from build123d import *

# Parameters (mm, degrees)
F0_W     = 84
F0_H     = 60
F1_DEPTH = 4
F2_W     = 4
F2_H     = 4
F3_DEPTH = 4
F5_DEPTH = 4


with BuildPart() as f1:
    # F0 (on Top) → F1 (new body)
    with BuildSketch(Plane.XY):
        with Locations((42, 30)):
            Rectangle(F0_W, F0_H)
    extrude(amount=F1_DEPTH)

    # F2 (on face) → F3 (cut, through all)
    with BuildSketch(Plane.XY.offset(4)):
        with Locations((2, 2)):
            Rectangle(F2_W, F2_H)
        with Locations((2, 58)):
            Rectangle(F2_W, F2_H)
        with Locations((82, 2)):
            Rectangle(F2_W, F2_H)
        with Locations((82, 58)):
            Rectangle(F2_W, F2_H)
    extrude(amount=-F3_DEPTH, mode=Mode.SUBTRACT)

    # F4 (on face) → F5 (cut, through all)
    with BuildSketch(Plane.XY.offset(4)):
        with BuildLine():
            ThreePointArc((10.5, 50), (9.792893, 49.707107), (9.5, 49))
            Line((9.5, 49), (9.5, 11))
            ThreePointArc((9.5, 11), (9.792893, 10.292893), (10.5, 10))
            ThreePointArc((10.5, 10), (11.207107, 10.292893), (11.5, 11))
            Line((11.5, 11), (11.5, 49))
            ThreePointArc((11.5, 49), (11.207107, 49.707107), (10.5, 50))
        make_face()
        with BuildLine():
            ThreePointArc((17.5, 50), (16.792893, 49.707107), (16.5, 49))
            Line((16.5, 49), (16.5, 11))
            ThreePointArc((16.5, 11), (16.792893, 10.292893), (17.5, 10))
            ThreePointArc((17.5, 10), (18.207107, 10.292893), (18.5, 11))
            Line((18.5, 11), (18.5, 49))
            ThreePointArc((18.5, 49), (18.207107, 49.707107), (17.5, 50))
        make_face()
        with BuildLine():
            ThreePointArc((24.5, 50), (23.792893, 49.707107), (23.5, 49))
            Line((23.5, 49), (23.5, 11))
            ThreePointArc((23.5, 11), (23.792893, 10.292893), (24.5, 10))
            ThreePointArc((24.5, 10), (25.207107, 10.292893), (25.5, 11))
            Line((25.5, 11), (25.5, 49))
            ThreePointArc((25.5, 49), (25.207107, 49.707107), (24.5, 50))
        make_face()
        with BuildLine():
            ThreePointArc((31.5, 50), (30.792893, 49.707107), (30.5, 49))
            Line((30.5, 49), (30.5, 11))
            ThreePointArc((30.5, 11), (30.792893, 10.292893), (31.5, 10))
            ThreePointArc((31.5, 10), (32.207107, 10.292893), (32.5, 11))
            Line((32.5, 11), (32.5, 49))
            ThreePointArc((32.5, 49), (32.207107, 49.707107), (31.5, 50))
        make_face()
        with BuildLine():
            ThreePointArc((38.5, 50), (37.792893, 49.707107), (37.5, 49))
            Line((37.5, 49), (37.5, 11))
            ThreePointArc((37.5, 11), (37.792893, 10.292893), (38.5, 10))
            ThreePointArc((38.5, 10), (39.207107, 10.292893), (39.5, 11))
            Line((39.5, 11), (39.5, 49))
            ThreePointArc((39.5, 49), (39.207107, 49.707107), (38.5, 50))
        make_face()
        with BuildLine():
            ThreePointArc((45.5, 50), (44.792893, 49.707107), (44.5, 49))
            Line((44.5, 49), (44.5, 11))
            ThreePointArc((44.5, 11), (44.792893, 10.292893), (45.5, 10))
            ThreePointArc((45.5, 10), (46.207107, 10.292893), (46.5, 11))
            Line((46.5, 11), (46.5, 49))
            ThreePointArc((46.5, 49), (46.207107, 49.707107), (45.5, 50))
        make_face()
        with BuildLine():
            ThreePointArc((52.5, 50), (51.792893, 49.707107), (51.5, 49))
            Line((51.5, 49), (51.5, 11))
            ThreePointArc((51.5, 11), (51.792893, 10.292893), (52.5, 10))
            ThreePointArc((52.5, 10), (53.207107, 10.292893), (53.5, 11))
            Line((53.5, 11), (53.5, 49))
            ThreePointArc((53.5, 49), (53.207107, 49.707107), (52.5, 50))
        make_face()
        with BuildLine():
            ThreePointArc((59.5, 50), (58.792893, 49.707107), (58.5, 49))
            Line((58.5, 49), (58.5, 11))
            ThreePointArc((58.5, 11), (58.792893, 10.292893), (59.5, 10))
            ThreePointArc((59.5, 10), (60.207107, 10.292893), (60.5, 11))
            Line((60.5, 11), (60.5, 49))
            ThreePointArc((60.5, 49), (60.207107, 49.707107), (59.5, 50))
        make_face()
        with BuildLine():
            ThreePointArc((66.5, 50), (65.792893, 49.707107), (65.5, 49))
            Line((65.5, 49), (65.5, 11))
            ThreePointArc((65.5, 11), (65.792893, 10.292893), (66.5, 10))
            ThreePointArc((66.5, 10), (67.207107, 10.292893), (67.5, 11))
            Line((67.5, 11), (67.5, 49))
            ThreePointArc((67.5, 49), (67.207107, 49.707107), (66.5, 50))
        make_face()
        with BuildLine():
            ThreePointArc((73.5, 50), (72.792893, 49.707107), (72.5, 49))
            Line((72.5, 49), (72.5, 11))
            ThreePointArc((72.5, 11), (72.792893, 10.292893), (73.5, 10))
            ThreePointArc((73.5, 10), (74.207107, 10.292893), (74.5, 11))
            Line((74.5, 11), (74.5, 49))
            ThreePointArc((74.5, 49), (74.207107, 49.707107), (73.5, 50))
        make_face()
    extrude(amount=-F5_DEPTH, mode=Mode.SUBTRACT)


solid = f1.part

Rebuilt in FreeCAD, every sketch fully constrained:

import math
import FreeCAD as App
import Part
import Sketcher


def add_polygon(sketch, points):
    """Adds a closed chain of lines whose ends are joined by coincident constraints."""
    first, n = sketch.GeometryCount, len(points)
    for a, b in zip(points, points[1:] + points[:1]):
        sketch.addGeometry(Part.LineSegment(App.Vector(*a, 0), App.Vector(*b, 0)), False)
    for i in range(n):
        sketch.addConstraint(Sketcher.Constraint("Coincident", first + i, 2, first + (i + 1) % n, 1))

doc = App.newDocument("Part")
params = doc.addObject("Spreadsheet::Sheet", "Params")
for row, (alias, value) in enumerate([
    ("sketch1_width", "84 mm"),
    ("sketch1_height", "60 mm"),
    ("pad1_length", "4 mm"),
    ("sketch2_width", "4 mm"),
    ("sketch3_radius", "0.999999 mm"),
    ("sketch3_height", "38 mm"),
], start=1):
    params.set(f"A{row}", alias)
    params.set(f"B{row}", "=" + value)
    params.setAlias(f"B{row}", alias)

body = doc.addObject("PartDesign::Body", "Body")

# Sketch on XY plane
sketch1 = body.newObject("Sketcher::SketchObject", "Sketch")
sketch1.AttachmentSupport = (doc.getObject("XY_Plane"), [""])
sketch1.MapMode = "FlatFace"
add_polygon(sketch1, [(0, 60), (0, 0), (84, 0), (84, 60)])  # lines 0-3
sketch1.addConstraint([
    Sketcher.Constraint("Vertical", 0),
    Sketcher.Constraint("Horizontal", 1),
    Sketcher.Constraint("Vertical", 2),
    Sketcher.Constraint("Horizontal", 3),
    Sketcher.Constraint("Coincident", 0, 2, -1, 1),
    Sketcher.Constraint("DistanceX", 1, 1, 1, 2, 84.0),
    Sketcher.Constraint("DistanceY", 0, 2, 0, 1, 60.0),
])
sketch1.setExpression("Constraints[9]", "Params.sketch1_width")
sketch1.setExpression("Constraints[10]", "Params.sketch1_height")
pad1 = body.newObject("PartDesign::Pad", "Pad")
pad1.Profile = sketch1
pad1.setExpression("Length", "Params.pad1_length")

# Sketch on XY plane
sketch2 = body.newObject("Sketcher::SketchObject", "Sketch001")
sketch2.AttachmentSupport = (doc.getObject("XY_Plane"), [""])
sketch2.MapMode = "FlatFace"
sketch2.AttachmentOffset = App.Placement(App.Vector(0, 0, 4), App.Rotation())
add_polygon(sketch2, [(0, 4), (0, 0), (4, 0), (4, 4)])  # lines 0-3
add_polygon(sketch2, [(0, 60), (0, 56), (4, 56), (4, 60)])  # lines 4-7
add_polygon(sketch2, [(80, 4), (80, 0), (84, 0), (84, 4)])  # lines 8-11
add_polygon(sketch2, [(80, 60), (80, 56), (84, 56), (84, 60)])  # lines 12-15
sketch2.addConstraint([
    Sketcher.Constraint("Vertical", 0),
    Sketcher.Constraint("Horizontal", 1),
    Sketcher.Constraint("Vertical", 2),
    Sketcher.Constraint("Horizontal", 3),
    Sketcher.Constraint("Vertical", 4),
    Sketcher.Constraint("Horizontal", 5),
    Sketcher.Constraint("Vertical", 6),
    Sketcher.Constraint("Horizontal", 7),
    Sketcher.Constraint("Vertical", 8),
    Sketcher.Constraint("Horizontal", 9),
    Sketcher.Constraint("Vertical", 10),
    Sketcher.Constraint("Horizontal", 11),
    Sketcher.Constraint("Vertical", 12),
    Sketcher.Constraint("Horizontal", 13),
    Sketcher.Constraint("Vertical", 14),
    Sketcher.Constraint("Horizontal", 15),
    Sketcher.Constraint("Coincident", 0, 2, -1, 1),
    Sketcher.Constraint("PointOnObject", 4, 2, -2),
    Sketcher.Constraint("PointOnObject", 8, 2, -1),
    Sketcher.Constraint("Horizontal", 3, 2, 10, 2),
    Sketcher.Constraint("Horizontal", 5, 2, 12, 2),
    Sketcher.Constraint("Horizontal", 7, 2, 14, 2),
    Sketcher.Constraint("Vertical", 2, 2, 5, 2),
    Sketcher.Constraint("Vertical", 11, 2, 12, 2),
    Sketcher.Constraint("Vertical", 10, 2, 13, 2),
    Sketcher.Constraint("Equal", 7, 9),
    Sketcher.Constraint("Equal", 15, 0),
    Sketcher.Constraint("Equal", 2, 4),
    Sketcher.Constraint("DistanceX", 1, 1, 1, 2, 4.0),
    Sketcher.Constraint("DistanceY", -1, 1, 4, 2, 56.0),
    Sketcher.Constraint("DistanceX", -1, 1, 8, 2, 80.0),
])
sketch2.setExpression("Constraints[44]", "Params.sketch2_width")
pocket1 = body.newObject("PartDesign::Pocket", "Pocket")
pocket1.Profile = sketch2
pocket1.Type = "ThroughAll"

# Sketch on XY plane
sketch3 = body.newObject("Sketcher::SketchObject", "Sketch002")
sketch3.AttachmentSupport = (doc.getObject("XY_Plane"), [""])
sketch3.MapMode = "FlatFace"
sketch3.AttachmentOffset = App.Placement(App.Vector(0, 0, 4), App.Rotation())
sketch3.addGeometry([
    Part.ArcOfCircle(Part.Circle(App.Vector(10.5, 49, 0), App.Vector(0, 0, 1), 1), math.radians(90), math.radians(180)),  # 0
    Part.LineSegment(App.Vector(9.5, 49, 0), App.Vector(9.5, 11, 0)),  # 1
    Part.ArcOfCircle(Part.Circle(App.Vector(10.5, 11, 0), App.Vector(0, 0, 1), 1), math.radians(180), math.radians(270)),  # 2
    Part.ArcOfCircle(Part.Circle(App.Vector(10.5, 11, 0), App.Vector(0, 0, 1), 1), math.radians(-90), math.radians(0)),  # 3
    Part.LineSegment(App.Vector(11.5, 11, 0), App.Vector(11.5, 49, 0)),  # 4
    Part.ArcOfCircle(Part.Circle(App.Vector(10.5, 49, 0), App.Vector(0, 0, 1), 1), math.radians(0), math.radians(90)),  # 5
    Part.ArcOfCircle(Part.Circle(App.Vector(17.5, 49, 0), App.Vector(0, 0, 1), 1), math.radians(90), math.radians(180)),  # 6
    Part.LineSegment(App.Vector(16.5, 49, 0), App.Vector(16.5, 11, 0)),  # 7
    Part.ArcOfCircle(Part.Circle(App.Vector(17.5, 11, 0), App.Vector(0, 0, 1), 1), math.radians(180), math.radians(270)),  # 8
    Part.ArcOfCircle(Part.Circle(App.Vector(17.5, 11, 0), App.Vector(0, 0, 1), 1), math.radians(-90), math.radians(0)),  # 9
    Part.LineSegment(App.Vector(18.5, 11, 0), App.Vector(18.5, 49, 0)),  # 10
    Part.ArcOfCircle(Part.Circle(App.Vector(17.5, 49, 0), App.Vector(0, 0, 1), 1), math.radians(0), math.radians(90)),  # 11
    Part.ArcOfCircle(Part.Circle(App.Vector(24.5, 49, 0), App.Vector(0, 0, 1), 1), math.radians(90), math.radians(180)),  # 12
    Part.LineSegment(App.Vector(23.5, 49, 0), App.Vector(23.5, 11, 0)),  # 13
    Part.ArcOfCircle(Part.Circle(App.Vector(24.5, 11, 0), App.Vector(0, 0, 1), 1), math.radians(180), math.radians(270)),  # 14
    Part.ArcOfCircle(Part.Circle(App.Vector(24.5, 11, 0), App.Vector(0, 0, 1), 1), math.radians(-90), math.radians(0)),  # 15
    Part.LineSegment(App.Vector(25.5, 11, 0), App.Vector(25.5, 49, 0)),  # 16
    Part.ArcOfCircle(Part.Circle(App.Vector(24.5, 49, 0), App.Vector(0, 0, 1), 1), math.radians(0), math.radians(90)),  # 17
    Part.ArcOfCircle(Part.Circle(App.Vector(31.5, 49, 0), App.Vector(0, 0, 1), 1), math.radians(90), math.radians(180)),  # 18
    Part.LineSegment(App.Vector(30.5, 49, 0), App.Vector(30.5, 11, 0)),  # 19
    Part.ArcOfCircle(Part.Circle(App.Vector(31.5, 11, 0), App.Vector(0, 0, 1), 1), math.radians(180), math.radians(270)),  # 20
    Part.ArcOfCircle(Part.Circle(App.Vector(31.5, 11, 0), App.Vector(0, 0, 1), 1), math.radians(-90), math.radians(0)),  # 21
    Part.LineSegment(App.Vector(32.5, 11, 0), App.Vector(32.5, 49, 0)),  # 22
    Part.ArcOfCircle(Part.Circle(App.Vector(31.5, 49, 0), App.Vector(0, 0, 1), 1), math.radians(0), math.radians(90)),  # 23
    Part.ArcOfCircle(Part.Circle(App.Vector(38.5, 49, 0), App.Vector(0, 0, 1), 1), math.radians(90), math.radians(180)),  # 24
    Part.LineSegment(App.Vector(37.5, 49, 0), App.Vector(37.5, 11, 0)),  # 25
    Part.ArcOfCircle(Part.Circle(App.Vector(38.5, 11, 0), App.Vector(0, 0, 1), 1), math.radians(180), math.radians(270)),  # 26
    Part.ArcOfCircle(Part.Circle(App.Vector(38.5, 11, 0), App.Vector(0, 0, 1), 1), math.radians(-90), math.radians(0)),  # 27
    Part.LineSegment(App.Vector(39.5, 11, 0), App.Vector(39.5, 49, 0)),  # 28
    Part.ArcOfCircle(Part.Circle(App.Vector(38.5, 49, 0), App.Vector(0, 0, 1), 1), math.radians(0), math.radians(90)),  # 29
    Part.ArcOfCircle(Part.Circle(App.Vector(45.5, 49, 0), App.Vector(0, 0, 1), 1), math.radians(90), math.radians(180)),  # 30
    Part.LineSegment(App.Vector(44.5, 49, 0), App.Vector(44.5, 11, 0)),  # 31
    Part.ArcOfCircle(Part.Circle(App.Vector(45.5, 11, 0), App.Vector(0, 0, 1), 1), math.radians(180), math.radians(270)),  # 32
    Part.ArcOfCircle(Part.Circle(App.Vector(45.5, 11, 0), App.Vector(0, 0, 1), 1), math.radians(-90), math.radians(0)),  # 33
    Part.LineSegment(App.Vector(46.5, 11, 0), App.Vector(46.5, 49, 0)),  # 34
    Part.ArcOfCircle(Part.Circle(App.Vector(45.5, 49, 0), App.Vector(0, 0, 1), 1), math.radians(0), math.radians(90)),  # 35
    Part.ArcOfCircle(Part.Circle(App.Vector(52.5, 49, 0), App.Vector(0, 0, 1), 1), math.radians(90), math.radians(180)),  # 36
    Part.LineSegment(App.Vector(51.5, 49, 0), App.Vector(51.5, 11, 0)),  # 37
    Part.ArcOfCircle(Part.Circle(App.Vector(52.5, 11, 0), App.Vector(0, 0, 1), 1), math.radians(180), math.radians(270)),  # 38
    Part.ArcOfCircle(Part.Circle(App.Vector(52.5, 11, 0), App.Vector(0, 0, 1), 1), math.radians(-90), math.radians(0)),  # 39
    Part.LineSegment(App.Vector(53.5, 11, 0), App.Vector(53.5, 49, 0)),  # 40
    Part.ArcOfCircle(Part.Circle(App.Vector(52.5, 49, 0), App.Vector(0, 0, 1), 1), math.radians(0), math.radians(90)),  # 41
    Part.ArcOfCircle(Part.Circle(App.Vector(59.5, 49, 0), App.Vector(0, 0, 1), 1), math.radians(90), math.radians(180)),  # 42
    Part.LineSegment(App.Vector(58.5, 49, 0), App.Vector(58.5, 11, 0)),  # 43
    Part.ArcOfCircle(Part.Circle(App.Vector(59.5, 11, 0), App.Vector(0, 0, 1), 1), math.radians(180), math.radians(270)),  # 44
    Part.ArcOfCircle(Part.Circle(App.Vector(59.5, 11, 0), App.Vector(0, 0, 1), 1), math.radians(-90), math.radians(0)),  # 45
    Part.LineSegment(App.Vector(60.5, 11, 0), App.Vector(60.5, 49, 0)),  # 46
    Part.ArcOfCircle(Part.Circle(App.Vector(59.5, 49, 0), App.Vector(0, 0, 1), 1), math.radians(0), math.radians(90)),  # 47
    Part.ArcOfCircle(Part.Circle(App.Vector(66.5, 49, 0), App.Vector(0, 0, 1), 1), math.radians(90), math.radians(180)),  # 48
    Part.LineSegment(App.Vector(65.5, 49, 0), App.Vector(65.5, 11, 0)),  # 49
    Part.ArcOfCircle(Part.Circle(App.Vector(66.5, 11, 0), App.Vector(0, 0, 1), 1), math.radians(180), math.radians(270)),  # 50
    Part.ArcOfCircle(Part.Circle(App.Vector(66.5, 11, 0), App.Vector(0, 0, 1), 1), math.radians(-90), math.radians(0)),  # 51
    Part.LineSegment(App.Vector(67.5, 11, 0), App.Vector(67.5, 49, 0)),  # 52
    Part.ArcOfCircle(Part.Circle(App.Vector(66.5, 49, 0), App.Vector(0, 0, 1), 1), math.radians(0), math.radians(90)),  # 53
    Part.ArcOfCircle(Part.Circle(App.Vector(73.5, 49, 0), App.Vector(0, 0, 1), 1), math.radians(90), math.radians(180)),  # 54
    Part.LineSegment(App.Vector(72.5, 49, 0), App.Vector(72.5, 11, 0)),  # 55
    Part.ArcOfCircle(Part.Circle(App.Vector(73.5, 11, 0), App.Vector(0, 0, 1), 1), math.radians(180), math.radians(270)),  # 56
    Part.ArcOfCircle(Part.Circle(App.Vector(73.5, 11, 0), App.Vector(0, 0, 1), 1), math.radians(-90), math.radians(0)),  # 57
    Part.LineSegment(App.Vector(74.5, 11, 0), App.Vector(74.5, 49, 0)),  # 58
    Part.ArcOfCircle(Part.Circle(App.Vector(73.5, 49, 0), App.Vector(0, 0, 1), 1), math.radians(0), math.radians(90)),  # 59
], False)
sketch3.addConstraint([
    Sketcher.Constraint("Tangent", 0, 2, 1, 1),
    Sketcher.Constraint("Tangent", 1, 2, 2, 1),
    Sketcher.Constraint("Tangent", 2, 2, 3, 1),
    Sketcher.Constraint("Tangent", 3, 2, 4, 1),
    Sketcher.Constraint("Tangent", 4, 2, 5, 1),
    Sketcher.Constraint("Tangent", 5, 2, 0, 1),
    Sketcher.Constraint("Tangent", 6, 2, 7, 1),
    Sketcher.Constraint("Tangent", 7, 2, 8, 1),
    Sketcher.Constraint("Tangent", 8, 2, 9, 1),
    Sketcher.Constraint("Tangent", 9, 2, 10, 1),
    Sketcher.Constraint("Tangent", 10, 2, 11, 1),
    Sketcher.Constraint("Tangent", 11, 2, 6, 1),
    Sketcher.Constraint("Tangent", 12, 2, 13, 1),
    Sketcher.Constraint("Tangent", 13, 2, 14, 1),
    Sketcher.Constraint("Tangent", 14, 2, 15, 1),
    Sketcher.Constraint("Tangent", 15, 2, 16, 1),
    Sketcher.Constraint("Tangent", 16, 2, 17, 1),
    Sketcher.Constraint("Tangent", 17, 2, 12, 1),
    Sketcher.Constraint("Tangent", 18, 2, 19, 1),
    Sketcher.Constraint("Tangent", 19, 2, 20, 1),
    Sketcher.Constraint("Tangent", 20, 2, 21, 1),
    Sketcher.Constraint("Tangent", 21, 2, 22, 1),
    Sketcher.Constraint("Tangent", 22, 2, 23, 1),
    Sketcher.Constraint("Tangent", 23, 2, 18, 1),
    Sketcher.Constraint("Tangent", 24, 2, 25, 1),
    Sketcher.Constraint("Tangent", 25, 2, 26, 1),
    Sketcher.Constraint("Tangent", 26, 2, 27, 1),
    Sketcher.Constraint("Tangent", 27, 2, 28, 1),
    Sketcher.Constraint("Tangent", 28, 2, 29, 1),
    Sketcher.Constraint("Tangent", 29, 2, 24, 1),
    Sketcher.Constraint("Tangent", 30, 2, 31, 1),
    Sketcher.Constraint("Tangent", 31, 2, 32, 1),
    Sketcher.Constraint("Tangent", 32, 2, 33, 1),
    Sketcher.Constraint("Tangent", 33, 2, 34, 1),
    Sketcher.Constraint("Tangent", 34, 2, 35, 1),
    Sketcher.Constraint("Tangent", 35, 2, 30, 1),
    Sketcher.Constraint("Tangent", 36, 2, 37, 1),
    Sketcher.Constraint("Tangent", 37, 2, 38, 1),
    Sketcher.Constraint("Tangent", 38, 2, 39, 1),
    Sketcher.Constraint("Tangent", 39, 2, 40, 1),
    Sketcher.Constraint("Tangent", 40, 2, 41, 1),
    Sketcher.Constraint("Tangent", 41, 2, 36, 1),
    Sketcher.Constraint("Tangent", 42, 2, 43, 1),
    Sketcher.Constraint("Tangent", 43, 2, 44, 1),
    Sketcher.Constraint("Tangent", 44, 2, 45, 1),
    Sketcher.Constraint("Tangent", 45, 2, 46, 1),
    Sketcher.Constraint("Tangent", 46, 2, 47, 1),
    Sketcher.Constraint("Tangent", 47, 2, 42, 1),
    Sketcher.Constraint("Tangent", 48, 2, 49, 1),
    Sketcher.Constraint("Tangent", 49, 2, 50, 1),
    Sketcher.Constraint("Tangent", 50, 2, 51, 1),
    Sketcher.Constraint("Tangent", 51, 2, 52, 1),
    Sketcher.Constraint("Tangent", 52, 2, 53, 1),
    Sketcher.Constraint("Tangent", 53, 2, 48, 1),
    Sketcher.Constraint("Tangent", 54, 2, 55, 1),
    Sketcher.Constraint("Tangent", 55, 2, 56, 1),
    Sketcher.Constraint("Tangent", 56, 2, 57, 1),
    Sketcher.Constraint("Tangent", 57, 2, 58, 1),
    Sketcher.Constraint("Tangent", 58, 2, 59, 1),
    Sketcher.Constraint("Tangent", 59, 2, 54, 1),
    Sketcher.Constraint("Vertical", 1),
    Sketcher.Constraint("Vertical", 4),
    Sketcher.Constraint("Vertical", 7),
    Sketcher.Constraint("Vertical", 10),
    Sketcher.Constraint("Vertical", 13),
    Sketcher.Constraint("Vertical", 16),
    Sketcher.Constraint("Vertical", 19),
    Sketcher.Constraint("Vertical", 22),
    Sketcher.Constraint("Vertical", 25),
    Sketcher.Constraint("Vertical", 28),
    Sketcher.Constraint("Vertical", 31),
    Sketcher.Constraint("Vertical", 34),
    Sketcher.Constraint("Vertical", 37),
    Sketcher.Constraint("Vertical", 40),
    Sketcher.Constraint("Vertical", 43),
    Sketcher.Constraint("Vertical", 46),
    Sketcher.Constraint("Vertical", 49),
    Sketcher.Constraint("Vertical", 52),
    Sketcher.Constraint("Vertical", 55),
    Sketcher.Constraint("Vertical", 58),
    Sketcher.Constraint("Equal", 0, 2),
    Sketcher.Constraint("Equal", 2, 3),
    Sketcher.Constraint("Equal", 5, 6),
    Sketcher.Constraint("Equal", 6, 8),
    Sketcher.Constraint("Equal", 8, 9),
    Sketcher.Constraint("Equal", 11, 12),
    Sketcher.Constraint("Equal", 12, 14),
    Sketcher.Constraint("Equal", 14, 15),
    Sketcher.Constraint("Equal", 17, 18),
    Sketcher.Constraint("Equal", 18, 20),
    Sketcher.Constraint("Equal", 20, 21),
    Sketcher.Constraint("Equal", 23, 24),
    Sketcher.Constraint("Equal", 24, 26),
    Sketcher.Constraint("Equal", 26, 27),
    Sketcher.Constraint("Equal", 29, 30),
    Sketcher.Constraint("Equal", 30, 32),
    Sketcher.Constraint("Equal", 32, 33),
    Sketcher.Constraint("Equal", 35, 36),
    Sketcher.Constraint("Equal", 36, 38),
    Sketcher.Constraint("Equal", 38, 39),
    Sketcher.Constraint("Equal", 41, 42),
    Sketcher.Constraint("Equal", 42, 44),
    Sketcher.Constraint("Equal", 44, 45),
    Sketcher.Constraint("Equal", 47, 48),
    Sketcher.Constraint("Equal", 48, 50),
    Sketcher.Constraint("Equal", 50, 51),
    Sketcher.Constraint("Equal", 53, 54),
    Sketcher.Constraint("Equal", 54, 56),
    Sketcher.Constraint("Equal", 56, 57),
    Sketcher.Constraint("Horizontal", 5, 3, 6, 3),
    Sketcher.Constraint("Horizontal", 3, 3, 8, 3),
    Sketcher.Constraint("Horizontal", 11, 3, 12, 3),
    Sketcher.Constraint("Horizontal", 9, 3, 14, 3),
    Sketcher.Constraint("Horizontal", 17, 3, 18, 3),
    Sketcher.Constraint("Horizontal", 15, 3, 20, 3),
    Sketcher.Constraint("Horizontal", 23, 3, 24, 3),
    Sketcher.Constraint("Horizontal", 21, 3, 26, 3),
    Sketcher.Constraint("Horizontal", 29, 3, 30, 3),
    Sketcher.Constraint("Horizontal", 27, 3, 32, 3),
    Sketcher.Constraint("Horizontal", 35, 3, 36, 3),
    Sketcher.Constraint("Horizontal", 33, 3, 38, 3),
    Sketcher.Constraint("Horizontal", 41, 3, 42, 3),
    Sketcher.Constraint("Horizontal", 39, 3, 44, 3),
    Sketcher.Constraint("Horizontal", 47, 3, 48, 3),
    Sketcher.Constraint("Horizontal", 45, 3, 50, 3),
    Sketcher.Constraint("Horizontal", 53, 3, 54, 3),
    Sketcher.Constraint("Horizontal", 51, 3, 56, 3),
    Sketcher.Constraint("Vertical", 5, 3, 2, 2),
    Sketcher.Constraint("Vertical", 2, 2, 5, 2),
    Sketcher.Constraint("Vertical", 11, 3, 8, 2),
    Sketcher.Constraint("Vertical", 8, 2, 11, 2),
    Sketcher.Constraint("Vertical", 17, 3, 14, 2),
    Sketcher.Constraint("Vertical", 14, 2, 17, 2),
    Sketcher.Constraint("Vertical", 23, 3, 20, 2),
    Sketcher.Constraint("Vertical", 20, 2, 23, 2),
    Sketcher.Constraint("Vertical", 29, 3, 26, 2),
    Sketcher.Constraint("Vertical", 26, 2, 29, 2),
    Sketcher.Constraint("Vertical", 35, 3, 32, 2),
    Sketcher.Constraint("Vertical", 32, 2, 35, 2),
    Sketcher.Constraint("Vertical", 41, 3, 38, 2),
    Sketcher.Constraint("Vertical", 38, 2, 41, 2),
    Sketcher.Constraint("Vertical", 47, 3, 44, 2),
    Sketcher.Constraint("Vertical", 44, 2, 47, 2),
    Sketcher.Constraint("Vertical", 53, 3, 50, 2),
    Sketcher.Constraint("Vertical", 50, 2, 53, 2),
    Sketcher.Constraint("Vertical", 59, 3, 56, 2),
    Sketcher.Constraint("Vertical", 56, 2, 59, 2),
    Sketcher.Constraint("Radius", 0, 0.999999),
    Sketcher.Constraint("DistanceY", 1, 2, 1, 1, 38.0),
    Sketcher.Constraint("DistanceY", -1, 1, 0, 3, 49.000001),
    Sketcher.Constraint("DistanceX", -1, 1, 0, 3, 10.499999),
    Sketcher.Constraint("DistanceX", -1, 1, 6, 3, 17.499999),
    Sketcher.Constraint("DistanceX", -1, 1, 12, 3, 24.499999),
    Sketcher.Constraint("DistanceX", -1, 1, 18, 3, 31.499999),
    Sketcher.Constraint("DistanceX", -1, 1, 24, 3, 38.499999),
    Sketcher.Constraint("DistanceX", -1, 1, 30, 3, 45.499999),
    Sketcher.Constraint("DistanceX", -1, 1, 36, 3, 52.499999),
    Sketcher.Constraint("DistanceX", -1, 1, 42, 3, 59.499999),
    Sketcher.Constraint("DistanceX", -1, 1, 48, 3, 66.499999),
    Sketcher.Constraint("DistanceX", -1, 1, 54, 3, 73.499999),
])
sketch3.setExpression("Constraints[147]", "Params.sketch3_radius")
sketch3.setExpression("Constraints[148]", "Params.sketch3_height")
pocket2 = body.newObject("PartDesign::Pocket", "Pocket001")
pocket2.Profile = sketch3
pocket2.Type = "ThroughAll"

doc.recompute()
